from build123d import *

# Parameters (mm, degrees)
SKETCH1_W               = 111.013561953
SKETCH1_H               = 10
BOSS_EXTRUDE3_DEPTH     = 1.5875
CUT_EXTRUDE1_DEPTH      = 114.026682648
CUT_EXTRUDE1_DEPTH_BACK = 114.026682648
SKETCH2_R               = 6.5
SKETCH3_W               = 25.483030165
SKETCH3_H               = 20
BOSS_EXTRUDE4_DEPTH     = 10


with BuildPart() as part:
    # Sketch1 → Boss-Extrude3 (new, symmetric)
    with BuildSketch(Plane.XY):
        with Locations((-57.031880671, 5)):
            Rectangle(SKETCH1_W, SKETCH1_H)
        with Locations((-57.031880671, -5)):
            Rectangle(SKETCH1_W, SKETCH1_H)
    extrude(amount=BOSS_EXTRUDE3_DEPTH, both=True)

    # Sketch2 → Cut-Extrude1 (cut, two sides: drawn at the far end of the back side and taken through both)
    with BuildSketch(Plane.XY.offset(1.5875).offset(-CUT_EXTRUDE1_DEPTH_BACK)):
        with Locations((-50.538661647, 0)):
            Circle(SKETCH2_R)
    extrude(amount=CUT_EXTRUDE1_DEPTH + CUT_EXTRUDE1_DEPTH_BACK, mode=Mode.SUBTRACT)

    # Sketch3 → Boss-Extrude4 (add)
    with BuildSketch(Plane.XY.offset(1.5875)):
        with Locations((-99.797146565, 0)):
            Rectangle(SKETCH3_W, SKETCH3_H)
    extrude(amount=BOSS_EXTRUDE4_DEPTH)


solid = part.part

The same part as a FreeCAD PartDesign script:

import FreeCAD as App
import Part
import Sketcher

V = App.Vector
Q = App.Units.Quantity


def add_polygon(sketch, points):
    """Adds a closed chain of lines whose ends are joined by coincident constraints."""
    first, n = sketch.GeometryCount, len(points)
    for a, b in zip(points, points[1:] + points[:1]):
        sketch.addGeometry(Part.LineSegment(App.Vector(*a, 0), App.Vector(*b, 0)), False)
    for i in range(n):
        sketch.addConstraint(Sketcher.Constraint("Coincident", first + i, 2, first + (i + 1) % n, 1))

doc = App.newDocument("Part")
body = doc.addObject("PartDesign::Body", "Body")

sketch1 = body.newObject("Sketcher::SketchObject", "Sketch")
sketch1.AttachmentSupport = (doc.getObject("XY_Plane"), [""])
sketch1.MapMode = "FlatFace"
add_polygon(sketch1, [(-112.538662, 10), (-112.538662, -10), (-1.5251, -10), (-1.5251, 10)])
sketch1.addConstraint(Sketcher.Constraint("Vertical", 0))
sketch1.addConstraint(Sketcher.Constraint("Horizontal", 1))
sketch1.addConstraint(Sketcher.Constraint("Vertical", 2))
sketch1.addConstraint(Sketcher.Constraint("Horizontal", 3))
sketch1.addConstraint(Sketcher.Constraint("DistanceY", 0, 2, 0, 1, Q("20 mm")))
sketch1.addConstraint(Sketcher.Constraint("DistanceY", 0, 2, -1, 1, Q("10 mm")))
sketch1.addConstraint(Sketcher.Constraint("DistanceX", 1, 1, 1, 2, Q("111.013562 mm")))
sketch1.addConstraint(Sketcher.Constraint("DistanceX", 1, 2, -1, 1, Q("1.5251 mm")))
pad1 = body.newObject("PartDesign::Pad", "Pad")
pad1.Profile = sketch1
pad1.Length = 3.175
pad1.Midplane = True

sketch2 = body.newObject("Sketcher::SketchObject", "Sketch001")
sketch2.AttachmentSupport = (doc.getObject("XY_Plane"), [""])
sketch2.MapMode = "FlatFace"
sketch2.AttachmentOffset = App.Placement(V(0, 0, 1.5875), App.Rotation())
sketch2.addGeometry(Part.Circle(V(-50.538662, 0, 0), V(0, 0, 1), 6.5), False)
sketch2.addConstraint(Sketcher.Constraint("PointOnObject", 0, 3, -1))
sketch2.addConstraint(Sketcher.Constraint("Diameter", 0, Q("13 mm")))
sketch2.addConstraint(Sketcher.Constraint("DistanceX", 0, 3, -1, 1, Q("50.538662 mm")))
pocket1 = body.newObject("PartDesign::Pocket", "Pocket")
pocket1.Profile = sketch2
pocket1.Type = "ThroughAll"
pocket1.Midplane = True

sketch3 = body.newObject("Sketcher::SketchObject", "Sketch002")
sketch3.AttachmentSupport = (doc.getObject("XY_Plane"), [""])
sketch3.MapMode = "FlatFace"
sketch3.AttachmentOffset = App.Placement(V(0, 0, 1.5875), App.Rotation())
add_polygon(sketch3, [(-112.538662, 10), (-112.538662, -10), (-87.055631, -10), (-87.055631, 10)])
sketch3.addConstraint(Sketcher.Constraint("Vertical", 0))
sketch3.addConstraint(Sketcher.Constraint("Horizontal", 1))
sketch3.addConstraint(Sketcher.Constraint("Vertical", 2))
sketch3.addConstraint(Sketcher.Constraint("Horizontal", 3))
sketch3.addConstraint(Sketcher.Constraint("DistanceY", 0, 2, 0, 1, Q("20 mm")))
sketch3.addConstraint(Sketcher.Constraint("DistanceY", 0, 2, -1, 1, Q("10 mm")))
sketch3.addConstraint(Sketcher.Constraint("DistanceX", 1, 1, 1, 2, Q("25.48303 mm")))
sketch3.addConstraint(Sketcher.Constraint("DistanceX", 0, 2, -1, 1, Q("112.538662 mm")))
pad2 = body.newObject("PartDesign::Pad", "Pad001")
pad2.Profile = sketch3
pad2.Length = 10

doc.recompute()
